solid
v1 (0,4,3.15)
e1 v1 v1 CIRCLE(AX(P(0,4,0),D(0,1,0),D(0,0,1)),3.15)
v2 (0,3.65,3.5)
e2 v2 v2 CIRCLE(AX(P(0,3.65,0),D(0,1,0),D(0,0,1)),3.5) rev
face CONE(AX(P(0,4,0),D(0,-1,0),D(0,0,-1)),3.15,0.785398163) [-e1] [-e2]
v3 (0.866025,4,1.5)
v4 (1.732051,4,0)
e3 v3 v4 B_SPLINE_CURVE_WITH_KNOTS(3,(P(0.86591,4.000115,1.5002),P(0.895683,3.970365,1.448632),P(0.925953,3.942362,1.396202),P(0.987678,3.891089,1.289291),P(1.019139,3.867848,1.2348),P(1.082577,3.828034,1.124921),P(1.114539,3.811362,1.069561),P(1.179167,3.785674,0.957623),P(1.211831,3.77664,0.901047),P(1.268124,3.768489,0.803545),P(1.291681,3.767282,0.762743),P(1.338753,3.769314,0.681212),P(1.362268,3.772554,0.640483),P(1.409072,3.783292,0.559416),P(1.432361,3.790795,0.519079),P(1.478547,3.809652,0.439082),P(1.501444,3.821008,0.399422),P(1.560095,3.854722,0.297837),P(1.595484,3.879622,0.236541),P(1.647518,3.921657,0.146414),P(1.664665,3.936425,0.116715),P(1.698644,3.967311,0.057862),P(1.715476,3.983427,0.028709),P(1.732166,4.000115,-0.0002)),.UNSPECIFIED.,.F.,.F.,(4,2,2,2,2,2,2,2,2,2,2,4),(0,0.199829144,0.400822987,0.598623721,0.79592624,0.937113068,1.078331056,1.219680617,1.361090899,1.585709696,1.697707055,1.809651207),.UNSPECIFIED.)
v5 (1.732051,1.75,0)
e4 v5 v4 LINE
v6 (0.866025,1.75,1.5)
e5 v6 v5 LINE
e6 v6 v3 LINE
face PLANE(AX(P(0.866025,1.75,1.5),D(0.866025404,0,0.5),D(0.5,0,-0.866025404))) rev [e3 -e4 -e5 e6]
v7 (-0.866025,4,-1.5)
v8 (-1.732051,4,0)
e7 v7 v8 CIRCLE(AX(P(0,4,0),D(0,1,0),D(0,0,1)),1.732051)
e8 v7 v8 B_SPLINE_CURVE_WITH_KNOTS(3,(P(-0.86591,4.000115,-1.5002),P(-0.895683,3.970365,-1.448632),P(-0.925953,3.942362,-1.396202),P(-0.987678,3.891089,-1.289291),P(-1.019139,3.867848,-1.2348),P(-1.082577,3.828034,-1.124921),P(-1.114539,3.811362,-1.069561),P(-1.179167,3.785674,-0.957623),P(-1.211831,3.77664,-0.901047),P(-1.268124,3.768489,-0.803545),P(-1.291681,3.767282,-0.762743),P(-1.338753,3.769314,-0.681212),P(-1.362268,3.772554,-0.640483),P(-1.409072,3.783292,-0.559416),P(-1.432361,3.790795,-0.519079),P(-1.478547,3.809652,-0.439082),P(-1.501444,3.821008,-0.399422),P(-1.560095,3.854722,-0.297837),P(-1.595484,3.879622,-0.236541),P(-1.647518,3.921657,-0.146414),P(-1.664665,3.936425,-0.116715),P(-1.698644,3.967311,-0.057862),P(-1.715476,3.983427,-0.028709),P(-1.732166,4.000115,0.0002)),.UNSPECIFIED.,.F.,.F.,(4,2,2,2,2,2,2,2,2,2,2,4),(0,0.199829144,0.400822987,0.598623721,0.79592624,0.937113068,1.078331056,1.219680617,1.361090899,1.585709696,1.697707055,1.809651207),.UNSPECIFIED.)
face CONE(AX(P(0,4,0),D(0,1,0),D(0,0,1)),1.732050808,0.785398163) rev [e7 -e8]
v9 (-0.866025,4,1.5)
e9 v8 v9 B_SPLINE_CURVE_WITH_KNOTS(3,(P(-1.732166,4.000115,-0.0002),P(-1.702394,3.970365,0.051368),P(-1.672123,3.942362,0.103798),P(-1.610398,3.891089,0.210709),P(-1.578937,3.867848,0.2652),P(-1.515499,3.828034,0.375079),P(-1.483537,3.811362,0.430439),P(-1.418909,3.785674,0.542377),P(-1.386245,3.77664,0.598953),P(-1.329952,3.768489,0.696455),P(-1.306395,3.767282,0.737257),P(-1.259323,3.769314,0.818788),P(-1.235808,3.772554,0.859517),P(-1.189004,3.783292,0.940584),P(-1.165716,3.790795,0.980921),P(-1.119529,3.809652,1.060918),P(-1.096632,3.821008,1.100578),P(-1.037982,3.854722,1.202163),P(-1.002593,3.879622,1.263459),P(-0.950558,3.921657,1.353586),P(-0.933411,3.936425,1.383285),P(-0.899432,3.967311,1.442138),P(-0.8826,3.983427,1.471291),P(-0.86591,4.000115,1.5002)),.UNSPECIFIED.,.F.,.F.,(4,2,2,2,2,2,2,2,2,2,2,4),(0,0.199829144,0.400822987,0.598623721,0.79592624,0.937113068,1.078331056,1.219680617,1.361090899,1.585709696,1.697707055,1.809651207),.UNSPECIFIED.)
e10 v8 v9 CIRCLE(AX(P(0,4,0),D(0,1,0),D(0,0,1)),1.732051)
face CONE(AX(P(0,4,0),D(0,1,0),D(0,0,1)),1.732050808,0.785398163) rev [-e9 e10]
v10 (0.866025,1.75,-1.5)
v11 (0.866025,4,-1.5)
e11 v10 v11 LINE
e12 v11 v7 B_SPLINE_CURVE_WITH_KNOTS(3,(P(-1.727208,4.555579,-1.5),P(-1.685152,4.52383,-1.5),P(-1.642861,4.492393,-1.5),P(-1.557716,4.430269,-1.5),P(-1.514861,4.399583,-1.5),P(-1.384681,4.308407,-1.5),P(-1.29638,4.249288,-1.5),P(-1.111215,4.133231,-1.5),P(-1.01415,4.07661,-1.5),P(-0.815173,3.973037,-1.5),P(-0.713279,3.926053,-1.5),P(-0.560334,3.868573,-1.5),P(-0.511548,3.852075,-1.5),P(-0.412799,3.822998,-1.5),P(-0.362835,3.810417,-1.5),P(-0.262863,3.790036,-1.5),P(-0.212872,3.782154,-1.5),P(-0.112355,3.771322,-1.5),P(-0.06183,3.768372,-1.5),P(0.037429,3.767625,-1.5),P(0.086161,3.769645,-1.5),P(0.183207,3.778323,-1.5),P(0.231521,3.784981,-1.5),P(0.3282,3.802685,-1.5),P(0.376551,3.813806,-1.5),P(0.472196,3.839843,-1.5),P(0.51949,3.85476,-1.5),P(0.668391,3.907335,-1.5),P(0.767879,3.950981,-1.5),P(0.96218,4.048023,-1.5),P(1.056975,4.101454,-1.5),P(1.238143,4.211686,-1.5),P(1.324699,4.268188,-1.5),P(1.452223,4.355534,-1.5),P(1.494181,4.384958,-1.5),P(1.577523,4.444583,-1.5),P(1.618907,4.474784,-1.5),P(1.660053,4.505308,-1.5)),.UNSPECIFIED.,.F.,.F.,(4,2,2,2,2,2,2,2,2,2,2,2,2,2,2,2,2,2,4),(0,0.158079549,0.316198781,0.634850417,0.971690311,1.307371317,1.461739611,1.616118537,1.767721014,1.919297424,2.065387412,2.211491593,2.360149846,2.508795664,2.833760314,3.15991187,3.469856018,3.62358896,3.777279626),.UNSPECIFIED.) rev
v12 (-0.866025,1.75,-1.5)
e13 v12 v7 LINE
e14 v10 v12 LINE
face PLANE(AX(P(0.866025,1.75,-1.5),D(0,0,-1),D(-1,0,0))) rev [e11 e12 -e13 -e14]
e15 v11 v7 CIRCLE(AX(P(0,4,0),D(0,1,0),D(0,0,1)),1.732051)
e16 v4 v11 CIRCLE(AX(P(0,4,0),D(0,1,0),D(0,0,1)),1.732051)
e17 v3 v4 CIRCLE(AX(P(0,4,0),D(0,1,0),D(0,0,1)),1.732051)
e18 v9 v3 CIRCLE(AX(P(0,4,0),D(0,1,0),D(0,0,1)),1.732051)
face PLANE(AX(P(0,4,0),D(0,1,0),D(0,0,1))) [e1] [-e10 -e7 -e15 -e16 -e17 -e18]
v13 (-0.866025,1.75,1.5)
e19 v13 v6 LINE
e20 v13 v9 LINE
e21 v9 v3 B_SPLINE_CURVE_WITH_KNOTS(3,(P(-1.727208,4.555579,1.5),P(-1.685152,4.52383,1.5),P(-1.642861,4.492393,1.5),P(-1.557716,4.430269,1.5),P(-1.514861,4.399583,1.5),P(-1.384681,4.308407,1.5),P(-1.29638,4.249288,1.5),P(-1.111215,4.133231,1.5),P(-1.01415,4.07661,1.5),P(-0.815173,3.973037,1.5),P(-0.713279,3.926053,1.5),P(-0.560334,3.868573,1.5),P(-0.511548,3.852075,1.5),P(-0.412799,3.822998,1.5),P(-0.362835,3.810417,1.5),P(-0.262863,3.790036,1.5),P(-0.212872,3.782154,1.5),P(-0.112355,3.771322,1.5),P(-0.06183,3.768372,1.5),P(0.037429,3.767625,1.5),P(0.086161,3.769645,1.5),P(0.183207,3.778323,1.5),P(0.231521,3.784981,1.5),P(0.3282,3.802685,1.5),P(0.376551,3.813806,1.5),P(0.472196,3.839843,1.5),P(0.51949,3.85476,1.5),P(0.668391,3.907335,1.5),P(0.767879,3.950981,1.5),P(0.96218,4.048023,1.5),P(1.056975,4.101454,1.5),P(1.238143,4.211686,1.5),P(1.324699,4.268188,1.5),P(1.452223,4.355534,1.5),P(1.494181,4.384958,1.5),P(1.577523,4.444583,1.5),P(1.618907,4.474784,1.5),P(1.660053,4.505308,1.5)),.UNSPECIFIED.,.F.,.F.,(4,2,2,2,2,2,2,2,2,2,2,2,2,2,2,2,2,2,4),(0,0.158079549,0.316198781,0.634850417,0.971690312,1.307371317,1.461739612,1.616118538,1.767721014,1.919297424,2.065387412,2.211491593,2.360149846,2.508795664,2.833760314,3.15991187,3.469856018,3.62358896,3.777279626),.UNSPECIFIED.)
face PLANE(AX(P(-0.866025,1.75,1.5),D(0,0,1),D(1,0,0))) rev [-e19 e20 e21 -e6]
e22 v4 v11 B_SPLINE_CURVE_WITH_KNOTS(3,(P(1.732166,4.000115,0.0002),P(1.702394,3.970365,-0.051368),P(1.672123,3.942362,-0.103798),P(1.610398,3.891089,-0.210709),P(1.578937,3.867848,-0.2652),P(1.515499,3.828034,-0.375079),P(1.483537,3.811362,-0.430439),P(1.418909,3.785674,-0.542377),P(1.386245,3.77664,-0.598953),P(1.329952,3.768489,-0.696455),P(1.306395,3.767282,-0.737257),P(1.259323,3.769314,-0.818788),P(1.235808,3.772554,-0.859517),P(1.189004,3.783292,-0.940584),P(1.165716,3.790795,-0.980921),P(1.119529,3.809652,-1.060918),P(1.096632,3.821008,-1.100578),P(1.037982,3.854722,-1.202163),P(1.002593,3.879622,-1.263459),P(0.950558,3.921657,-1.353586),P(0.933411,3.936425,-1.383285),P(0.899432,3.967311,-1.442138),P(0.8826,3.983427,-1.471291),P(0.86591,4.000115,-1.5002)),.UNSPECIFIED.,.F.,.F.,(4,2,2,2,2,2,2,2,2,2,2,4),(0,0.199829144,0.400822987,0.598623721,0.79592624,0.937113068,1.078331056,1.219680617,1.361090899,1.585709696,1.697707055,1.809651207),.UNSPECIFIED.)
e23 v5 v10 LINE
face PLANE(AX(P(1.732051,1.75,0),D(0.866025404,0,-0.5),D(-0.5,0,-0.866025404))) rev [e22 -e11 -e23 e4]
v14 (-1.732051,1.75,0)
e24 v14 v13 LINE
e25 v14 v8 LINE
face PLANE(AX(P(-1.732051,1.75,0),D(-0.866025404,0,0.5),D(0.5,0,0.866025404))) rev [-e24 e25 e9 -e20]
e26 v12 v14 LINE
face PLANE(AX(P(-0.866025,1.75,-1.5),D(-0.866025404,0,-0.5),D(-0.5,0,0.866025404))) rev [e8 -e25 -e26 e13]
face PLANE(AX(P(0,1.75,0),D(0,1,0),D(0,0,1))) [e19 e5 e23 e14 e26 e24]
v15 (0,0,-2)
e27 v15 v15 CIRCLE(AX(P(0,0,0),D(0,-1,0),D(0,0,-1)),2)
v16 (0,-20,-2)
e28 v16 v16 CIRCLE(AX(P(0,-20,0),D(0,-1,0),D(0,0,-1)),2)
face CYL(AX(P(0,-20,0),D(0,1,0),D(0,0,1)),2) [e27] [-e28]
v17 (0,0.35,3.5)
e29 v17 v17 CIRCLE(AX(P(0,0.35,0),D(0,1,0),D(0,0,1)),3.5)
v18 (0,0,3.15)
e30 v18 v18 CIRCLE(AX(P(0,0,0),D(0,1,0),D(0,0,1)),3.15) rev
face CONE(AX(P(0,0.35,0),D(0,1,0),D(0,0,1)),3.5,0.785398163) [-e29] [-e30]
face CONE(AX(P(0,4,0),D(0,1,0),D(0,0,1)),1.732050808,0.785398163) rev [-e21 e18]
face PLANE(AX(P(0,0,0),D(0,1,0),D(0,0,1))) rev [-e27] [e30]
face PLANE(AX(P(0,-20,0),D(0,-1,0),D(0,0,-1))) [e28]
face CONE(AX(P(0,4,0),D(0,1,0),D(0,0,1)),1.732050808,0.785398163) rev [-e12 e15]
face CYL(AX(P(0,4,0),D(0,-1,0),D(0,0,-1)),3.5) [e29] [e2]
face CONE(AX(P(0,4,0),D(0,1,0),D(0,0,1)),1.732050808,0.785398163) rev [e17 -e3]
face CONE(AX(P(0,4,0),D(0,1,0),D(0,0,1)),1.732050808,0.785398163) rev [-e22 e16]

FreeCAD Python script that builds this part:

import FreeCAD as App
import Part
import Sketcher
Q = App.Units.Quantity


def edges_at(feature, points):
    """Names of the edges that pass closest to the given points."""
    edges = feature.Shape.Edges
    near = lambda p: min(range(len(edges)), key=lambda i: edges[i].distToShape(Part.Vertex(*p))[0])
    return sorted({f"Edge{near(p) + 1}" for p in points})


def add_polygon(sketch, points):
    """Adds a closed chain of lines whose ends are joined by coincident constraints."""
    first, n = sketch.GeometryCount, len(points)
    for a, b in zip(points, points[1:] + points[:1]):
        sketch.addGeometry(Part.LineSegment(App.Vector(*a, 0), App.Vector(*b, 0)), False)
    for i in range(n):
        sketch.addConstraint(Sketcher.Constraint("Coincident", first + i, 2, first + (i + 1) % n, 1))

doc = App.newDocument("Part")
body = doc.addObject("PartDesign::Body", "Body")

# Sketch on XZ plane
sketch1 = doc.addObject("Sketcher::SketchObject", "Sketch")
body.addObject(sketch1)
sketch1.AttachmentSupport = (doc.XZ_Plane, [""])
sketch1.MapMode = "FlatFace"
sketch1.addGeometry(Part.Circle(App.Vector(0, 0, 0), App.Vector(0, 0, 1), 3.5), False)
sketch1.addConstraint(Sketcher.Constraint("Coincident", 0, 3, -1, 1))
sketch1.addConstraint(Sketcher.Constraint("Diameter", 0, Q("7 mm")))
pad1 = doc.addObject("PartDesign::Pad", "Pad")
body.addObject(pad1)
pad1.Profile = sketch1
pad1.Length = 4
pad1.Reversed = True

# Sketch on XZ plane
sketch2 = doc.addObject("Sketcher::SketchObject", "Sketch001")
body.addObject(sketch2)
sketch2.AttachmentSupport = (doc.XZ_Plane, [""])
sketch2.MapMode = "FlatFace"
sketch2.AttachmentOffset = App.Placement(App.Vector(0, 0, -4), App.Rotation())
add_polygon(sketch2, [(0.9, -1.5), (-0.9, -1.5), (-1.7, 0), (-0.9, 1.5), (0.9, 1.5), (1.7, 0)])  # lines 0-5
sketch2.addConstraint(Sketcher.Constraint("Horizontal", 0))
sketch2.addConstraint(Sketcher.Constraint("Horizontal", 3))
sketch2.addConstraint(Sketcher.Constraint("Symmetric", 0, 2, 3, 2, -1, 1))
sketch2.addConstraint(Sketcher.Constraint("Symmetric", 1, 2, 4, 2, -1, 1))
sketch2.addConstraint(Sketcher.Constraint("PointOnObject", 1, 2, -1))
sketch2.addConstraint(Sketcher.Constraint("Parallel", 2, 5))
sketch2.addConstraint(Sketcher.Constraint("Vertical", 0, 2, 2, 2))
sketch2.addConstraint(Sketcher.Constraint("Angle", 1, Q("120 deg")))
sketch2.addConstraint(Sketcher.Constraint("DistanceY", 0, 2, 2, 2, Q("3 mm")))
sketch2.addConstraint(Sketcher.Constraint("DistanceX", 0, 2, 0, 1, Q("1.732051 mm")))
pocket1 = doc.addObject("PartDesign::Pocket", "Pocket")
body.addObject(pocket1)
pocket1.Profile = sketch2
pocket1.Length = 2.25
pocket1.Reversed = True

# Sketch on YZ plane
sketch3 = doc.addObject("Sketcher::SketchObject", "Sketch002")
body.addObject(sketch3)
sketch3.AttachmentSupport = (doc.YZ_Plane, [""])
sketch3.MapMode = "FlatFace"
add_polygon(sketch3, [(4, 0), (4, 1.7), (2.3, 0)])  # lines 0-2
sketch3.addConstraint(Sketcher.Constraint("Vertical", 0))
sketch3.addConstraint(Sketcher.Constraint("Horizontal", 2))
sketch3.addConstraint(Sketcher.Constraint("PointOnObject", 1, 2, -1))
sketch3.addConstraint(Sketcher.Constraint("Equal", 2, 0))
sketch3.addConstraint(Sketcher.Constraint("DistanceX", -1, 1, 0, 2, Q("4 mm")))
sketch3.addConstraint(Sketcher.Constraint("DistanceX", 2, 1, 2, 2, Q("1.732051 mm")))
groove = doc.addObject("PartDesign::Groove", "Groove")
body.addObject(groove)
groove.Profile = sketch3
groove.ReferenceAxis = (sketch3, ["H_Axis"])
groove.Angle = 360
doc.recompute()

chamfer = doc.addObject("PartDesign::Chamfer", "Chamfer")
body.addObject(chamfer)
chamfer.Base = (groove, edges_at(groove, [(0, 0, -3.5), (0, 4, -3.5)]))
chamfer.Size = 0.35

# Sketch on XZ plane
sketch4 = doc.addObject("Sketcher::SketchObject", "Sketch003")
body.addObject(sketch4)
sketch4.AttachmentSupport = (doc.XZ_Plane, [""])
sketch4.MapMode = "FlatFace"
sketch4.addGeometry(Part.Circle(App.Vector(0, 0, 0), App.Vector(0, 0, 1), 2), False)
sketch4.addConstraint(Sketcher.Constraint("Coincident", 0, 3, -1, 1))
sketch4.addConstraint(Sketcher.Constraint("Diameter", 0, Q("4 mm")))
pad2 = doc.addObject("PartDesign::Pad", "Pad001")
body.addObject(pad2)
pad2.Profile = sketch4
pad2.Length = 20

doc.recompute()
